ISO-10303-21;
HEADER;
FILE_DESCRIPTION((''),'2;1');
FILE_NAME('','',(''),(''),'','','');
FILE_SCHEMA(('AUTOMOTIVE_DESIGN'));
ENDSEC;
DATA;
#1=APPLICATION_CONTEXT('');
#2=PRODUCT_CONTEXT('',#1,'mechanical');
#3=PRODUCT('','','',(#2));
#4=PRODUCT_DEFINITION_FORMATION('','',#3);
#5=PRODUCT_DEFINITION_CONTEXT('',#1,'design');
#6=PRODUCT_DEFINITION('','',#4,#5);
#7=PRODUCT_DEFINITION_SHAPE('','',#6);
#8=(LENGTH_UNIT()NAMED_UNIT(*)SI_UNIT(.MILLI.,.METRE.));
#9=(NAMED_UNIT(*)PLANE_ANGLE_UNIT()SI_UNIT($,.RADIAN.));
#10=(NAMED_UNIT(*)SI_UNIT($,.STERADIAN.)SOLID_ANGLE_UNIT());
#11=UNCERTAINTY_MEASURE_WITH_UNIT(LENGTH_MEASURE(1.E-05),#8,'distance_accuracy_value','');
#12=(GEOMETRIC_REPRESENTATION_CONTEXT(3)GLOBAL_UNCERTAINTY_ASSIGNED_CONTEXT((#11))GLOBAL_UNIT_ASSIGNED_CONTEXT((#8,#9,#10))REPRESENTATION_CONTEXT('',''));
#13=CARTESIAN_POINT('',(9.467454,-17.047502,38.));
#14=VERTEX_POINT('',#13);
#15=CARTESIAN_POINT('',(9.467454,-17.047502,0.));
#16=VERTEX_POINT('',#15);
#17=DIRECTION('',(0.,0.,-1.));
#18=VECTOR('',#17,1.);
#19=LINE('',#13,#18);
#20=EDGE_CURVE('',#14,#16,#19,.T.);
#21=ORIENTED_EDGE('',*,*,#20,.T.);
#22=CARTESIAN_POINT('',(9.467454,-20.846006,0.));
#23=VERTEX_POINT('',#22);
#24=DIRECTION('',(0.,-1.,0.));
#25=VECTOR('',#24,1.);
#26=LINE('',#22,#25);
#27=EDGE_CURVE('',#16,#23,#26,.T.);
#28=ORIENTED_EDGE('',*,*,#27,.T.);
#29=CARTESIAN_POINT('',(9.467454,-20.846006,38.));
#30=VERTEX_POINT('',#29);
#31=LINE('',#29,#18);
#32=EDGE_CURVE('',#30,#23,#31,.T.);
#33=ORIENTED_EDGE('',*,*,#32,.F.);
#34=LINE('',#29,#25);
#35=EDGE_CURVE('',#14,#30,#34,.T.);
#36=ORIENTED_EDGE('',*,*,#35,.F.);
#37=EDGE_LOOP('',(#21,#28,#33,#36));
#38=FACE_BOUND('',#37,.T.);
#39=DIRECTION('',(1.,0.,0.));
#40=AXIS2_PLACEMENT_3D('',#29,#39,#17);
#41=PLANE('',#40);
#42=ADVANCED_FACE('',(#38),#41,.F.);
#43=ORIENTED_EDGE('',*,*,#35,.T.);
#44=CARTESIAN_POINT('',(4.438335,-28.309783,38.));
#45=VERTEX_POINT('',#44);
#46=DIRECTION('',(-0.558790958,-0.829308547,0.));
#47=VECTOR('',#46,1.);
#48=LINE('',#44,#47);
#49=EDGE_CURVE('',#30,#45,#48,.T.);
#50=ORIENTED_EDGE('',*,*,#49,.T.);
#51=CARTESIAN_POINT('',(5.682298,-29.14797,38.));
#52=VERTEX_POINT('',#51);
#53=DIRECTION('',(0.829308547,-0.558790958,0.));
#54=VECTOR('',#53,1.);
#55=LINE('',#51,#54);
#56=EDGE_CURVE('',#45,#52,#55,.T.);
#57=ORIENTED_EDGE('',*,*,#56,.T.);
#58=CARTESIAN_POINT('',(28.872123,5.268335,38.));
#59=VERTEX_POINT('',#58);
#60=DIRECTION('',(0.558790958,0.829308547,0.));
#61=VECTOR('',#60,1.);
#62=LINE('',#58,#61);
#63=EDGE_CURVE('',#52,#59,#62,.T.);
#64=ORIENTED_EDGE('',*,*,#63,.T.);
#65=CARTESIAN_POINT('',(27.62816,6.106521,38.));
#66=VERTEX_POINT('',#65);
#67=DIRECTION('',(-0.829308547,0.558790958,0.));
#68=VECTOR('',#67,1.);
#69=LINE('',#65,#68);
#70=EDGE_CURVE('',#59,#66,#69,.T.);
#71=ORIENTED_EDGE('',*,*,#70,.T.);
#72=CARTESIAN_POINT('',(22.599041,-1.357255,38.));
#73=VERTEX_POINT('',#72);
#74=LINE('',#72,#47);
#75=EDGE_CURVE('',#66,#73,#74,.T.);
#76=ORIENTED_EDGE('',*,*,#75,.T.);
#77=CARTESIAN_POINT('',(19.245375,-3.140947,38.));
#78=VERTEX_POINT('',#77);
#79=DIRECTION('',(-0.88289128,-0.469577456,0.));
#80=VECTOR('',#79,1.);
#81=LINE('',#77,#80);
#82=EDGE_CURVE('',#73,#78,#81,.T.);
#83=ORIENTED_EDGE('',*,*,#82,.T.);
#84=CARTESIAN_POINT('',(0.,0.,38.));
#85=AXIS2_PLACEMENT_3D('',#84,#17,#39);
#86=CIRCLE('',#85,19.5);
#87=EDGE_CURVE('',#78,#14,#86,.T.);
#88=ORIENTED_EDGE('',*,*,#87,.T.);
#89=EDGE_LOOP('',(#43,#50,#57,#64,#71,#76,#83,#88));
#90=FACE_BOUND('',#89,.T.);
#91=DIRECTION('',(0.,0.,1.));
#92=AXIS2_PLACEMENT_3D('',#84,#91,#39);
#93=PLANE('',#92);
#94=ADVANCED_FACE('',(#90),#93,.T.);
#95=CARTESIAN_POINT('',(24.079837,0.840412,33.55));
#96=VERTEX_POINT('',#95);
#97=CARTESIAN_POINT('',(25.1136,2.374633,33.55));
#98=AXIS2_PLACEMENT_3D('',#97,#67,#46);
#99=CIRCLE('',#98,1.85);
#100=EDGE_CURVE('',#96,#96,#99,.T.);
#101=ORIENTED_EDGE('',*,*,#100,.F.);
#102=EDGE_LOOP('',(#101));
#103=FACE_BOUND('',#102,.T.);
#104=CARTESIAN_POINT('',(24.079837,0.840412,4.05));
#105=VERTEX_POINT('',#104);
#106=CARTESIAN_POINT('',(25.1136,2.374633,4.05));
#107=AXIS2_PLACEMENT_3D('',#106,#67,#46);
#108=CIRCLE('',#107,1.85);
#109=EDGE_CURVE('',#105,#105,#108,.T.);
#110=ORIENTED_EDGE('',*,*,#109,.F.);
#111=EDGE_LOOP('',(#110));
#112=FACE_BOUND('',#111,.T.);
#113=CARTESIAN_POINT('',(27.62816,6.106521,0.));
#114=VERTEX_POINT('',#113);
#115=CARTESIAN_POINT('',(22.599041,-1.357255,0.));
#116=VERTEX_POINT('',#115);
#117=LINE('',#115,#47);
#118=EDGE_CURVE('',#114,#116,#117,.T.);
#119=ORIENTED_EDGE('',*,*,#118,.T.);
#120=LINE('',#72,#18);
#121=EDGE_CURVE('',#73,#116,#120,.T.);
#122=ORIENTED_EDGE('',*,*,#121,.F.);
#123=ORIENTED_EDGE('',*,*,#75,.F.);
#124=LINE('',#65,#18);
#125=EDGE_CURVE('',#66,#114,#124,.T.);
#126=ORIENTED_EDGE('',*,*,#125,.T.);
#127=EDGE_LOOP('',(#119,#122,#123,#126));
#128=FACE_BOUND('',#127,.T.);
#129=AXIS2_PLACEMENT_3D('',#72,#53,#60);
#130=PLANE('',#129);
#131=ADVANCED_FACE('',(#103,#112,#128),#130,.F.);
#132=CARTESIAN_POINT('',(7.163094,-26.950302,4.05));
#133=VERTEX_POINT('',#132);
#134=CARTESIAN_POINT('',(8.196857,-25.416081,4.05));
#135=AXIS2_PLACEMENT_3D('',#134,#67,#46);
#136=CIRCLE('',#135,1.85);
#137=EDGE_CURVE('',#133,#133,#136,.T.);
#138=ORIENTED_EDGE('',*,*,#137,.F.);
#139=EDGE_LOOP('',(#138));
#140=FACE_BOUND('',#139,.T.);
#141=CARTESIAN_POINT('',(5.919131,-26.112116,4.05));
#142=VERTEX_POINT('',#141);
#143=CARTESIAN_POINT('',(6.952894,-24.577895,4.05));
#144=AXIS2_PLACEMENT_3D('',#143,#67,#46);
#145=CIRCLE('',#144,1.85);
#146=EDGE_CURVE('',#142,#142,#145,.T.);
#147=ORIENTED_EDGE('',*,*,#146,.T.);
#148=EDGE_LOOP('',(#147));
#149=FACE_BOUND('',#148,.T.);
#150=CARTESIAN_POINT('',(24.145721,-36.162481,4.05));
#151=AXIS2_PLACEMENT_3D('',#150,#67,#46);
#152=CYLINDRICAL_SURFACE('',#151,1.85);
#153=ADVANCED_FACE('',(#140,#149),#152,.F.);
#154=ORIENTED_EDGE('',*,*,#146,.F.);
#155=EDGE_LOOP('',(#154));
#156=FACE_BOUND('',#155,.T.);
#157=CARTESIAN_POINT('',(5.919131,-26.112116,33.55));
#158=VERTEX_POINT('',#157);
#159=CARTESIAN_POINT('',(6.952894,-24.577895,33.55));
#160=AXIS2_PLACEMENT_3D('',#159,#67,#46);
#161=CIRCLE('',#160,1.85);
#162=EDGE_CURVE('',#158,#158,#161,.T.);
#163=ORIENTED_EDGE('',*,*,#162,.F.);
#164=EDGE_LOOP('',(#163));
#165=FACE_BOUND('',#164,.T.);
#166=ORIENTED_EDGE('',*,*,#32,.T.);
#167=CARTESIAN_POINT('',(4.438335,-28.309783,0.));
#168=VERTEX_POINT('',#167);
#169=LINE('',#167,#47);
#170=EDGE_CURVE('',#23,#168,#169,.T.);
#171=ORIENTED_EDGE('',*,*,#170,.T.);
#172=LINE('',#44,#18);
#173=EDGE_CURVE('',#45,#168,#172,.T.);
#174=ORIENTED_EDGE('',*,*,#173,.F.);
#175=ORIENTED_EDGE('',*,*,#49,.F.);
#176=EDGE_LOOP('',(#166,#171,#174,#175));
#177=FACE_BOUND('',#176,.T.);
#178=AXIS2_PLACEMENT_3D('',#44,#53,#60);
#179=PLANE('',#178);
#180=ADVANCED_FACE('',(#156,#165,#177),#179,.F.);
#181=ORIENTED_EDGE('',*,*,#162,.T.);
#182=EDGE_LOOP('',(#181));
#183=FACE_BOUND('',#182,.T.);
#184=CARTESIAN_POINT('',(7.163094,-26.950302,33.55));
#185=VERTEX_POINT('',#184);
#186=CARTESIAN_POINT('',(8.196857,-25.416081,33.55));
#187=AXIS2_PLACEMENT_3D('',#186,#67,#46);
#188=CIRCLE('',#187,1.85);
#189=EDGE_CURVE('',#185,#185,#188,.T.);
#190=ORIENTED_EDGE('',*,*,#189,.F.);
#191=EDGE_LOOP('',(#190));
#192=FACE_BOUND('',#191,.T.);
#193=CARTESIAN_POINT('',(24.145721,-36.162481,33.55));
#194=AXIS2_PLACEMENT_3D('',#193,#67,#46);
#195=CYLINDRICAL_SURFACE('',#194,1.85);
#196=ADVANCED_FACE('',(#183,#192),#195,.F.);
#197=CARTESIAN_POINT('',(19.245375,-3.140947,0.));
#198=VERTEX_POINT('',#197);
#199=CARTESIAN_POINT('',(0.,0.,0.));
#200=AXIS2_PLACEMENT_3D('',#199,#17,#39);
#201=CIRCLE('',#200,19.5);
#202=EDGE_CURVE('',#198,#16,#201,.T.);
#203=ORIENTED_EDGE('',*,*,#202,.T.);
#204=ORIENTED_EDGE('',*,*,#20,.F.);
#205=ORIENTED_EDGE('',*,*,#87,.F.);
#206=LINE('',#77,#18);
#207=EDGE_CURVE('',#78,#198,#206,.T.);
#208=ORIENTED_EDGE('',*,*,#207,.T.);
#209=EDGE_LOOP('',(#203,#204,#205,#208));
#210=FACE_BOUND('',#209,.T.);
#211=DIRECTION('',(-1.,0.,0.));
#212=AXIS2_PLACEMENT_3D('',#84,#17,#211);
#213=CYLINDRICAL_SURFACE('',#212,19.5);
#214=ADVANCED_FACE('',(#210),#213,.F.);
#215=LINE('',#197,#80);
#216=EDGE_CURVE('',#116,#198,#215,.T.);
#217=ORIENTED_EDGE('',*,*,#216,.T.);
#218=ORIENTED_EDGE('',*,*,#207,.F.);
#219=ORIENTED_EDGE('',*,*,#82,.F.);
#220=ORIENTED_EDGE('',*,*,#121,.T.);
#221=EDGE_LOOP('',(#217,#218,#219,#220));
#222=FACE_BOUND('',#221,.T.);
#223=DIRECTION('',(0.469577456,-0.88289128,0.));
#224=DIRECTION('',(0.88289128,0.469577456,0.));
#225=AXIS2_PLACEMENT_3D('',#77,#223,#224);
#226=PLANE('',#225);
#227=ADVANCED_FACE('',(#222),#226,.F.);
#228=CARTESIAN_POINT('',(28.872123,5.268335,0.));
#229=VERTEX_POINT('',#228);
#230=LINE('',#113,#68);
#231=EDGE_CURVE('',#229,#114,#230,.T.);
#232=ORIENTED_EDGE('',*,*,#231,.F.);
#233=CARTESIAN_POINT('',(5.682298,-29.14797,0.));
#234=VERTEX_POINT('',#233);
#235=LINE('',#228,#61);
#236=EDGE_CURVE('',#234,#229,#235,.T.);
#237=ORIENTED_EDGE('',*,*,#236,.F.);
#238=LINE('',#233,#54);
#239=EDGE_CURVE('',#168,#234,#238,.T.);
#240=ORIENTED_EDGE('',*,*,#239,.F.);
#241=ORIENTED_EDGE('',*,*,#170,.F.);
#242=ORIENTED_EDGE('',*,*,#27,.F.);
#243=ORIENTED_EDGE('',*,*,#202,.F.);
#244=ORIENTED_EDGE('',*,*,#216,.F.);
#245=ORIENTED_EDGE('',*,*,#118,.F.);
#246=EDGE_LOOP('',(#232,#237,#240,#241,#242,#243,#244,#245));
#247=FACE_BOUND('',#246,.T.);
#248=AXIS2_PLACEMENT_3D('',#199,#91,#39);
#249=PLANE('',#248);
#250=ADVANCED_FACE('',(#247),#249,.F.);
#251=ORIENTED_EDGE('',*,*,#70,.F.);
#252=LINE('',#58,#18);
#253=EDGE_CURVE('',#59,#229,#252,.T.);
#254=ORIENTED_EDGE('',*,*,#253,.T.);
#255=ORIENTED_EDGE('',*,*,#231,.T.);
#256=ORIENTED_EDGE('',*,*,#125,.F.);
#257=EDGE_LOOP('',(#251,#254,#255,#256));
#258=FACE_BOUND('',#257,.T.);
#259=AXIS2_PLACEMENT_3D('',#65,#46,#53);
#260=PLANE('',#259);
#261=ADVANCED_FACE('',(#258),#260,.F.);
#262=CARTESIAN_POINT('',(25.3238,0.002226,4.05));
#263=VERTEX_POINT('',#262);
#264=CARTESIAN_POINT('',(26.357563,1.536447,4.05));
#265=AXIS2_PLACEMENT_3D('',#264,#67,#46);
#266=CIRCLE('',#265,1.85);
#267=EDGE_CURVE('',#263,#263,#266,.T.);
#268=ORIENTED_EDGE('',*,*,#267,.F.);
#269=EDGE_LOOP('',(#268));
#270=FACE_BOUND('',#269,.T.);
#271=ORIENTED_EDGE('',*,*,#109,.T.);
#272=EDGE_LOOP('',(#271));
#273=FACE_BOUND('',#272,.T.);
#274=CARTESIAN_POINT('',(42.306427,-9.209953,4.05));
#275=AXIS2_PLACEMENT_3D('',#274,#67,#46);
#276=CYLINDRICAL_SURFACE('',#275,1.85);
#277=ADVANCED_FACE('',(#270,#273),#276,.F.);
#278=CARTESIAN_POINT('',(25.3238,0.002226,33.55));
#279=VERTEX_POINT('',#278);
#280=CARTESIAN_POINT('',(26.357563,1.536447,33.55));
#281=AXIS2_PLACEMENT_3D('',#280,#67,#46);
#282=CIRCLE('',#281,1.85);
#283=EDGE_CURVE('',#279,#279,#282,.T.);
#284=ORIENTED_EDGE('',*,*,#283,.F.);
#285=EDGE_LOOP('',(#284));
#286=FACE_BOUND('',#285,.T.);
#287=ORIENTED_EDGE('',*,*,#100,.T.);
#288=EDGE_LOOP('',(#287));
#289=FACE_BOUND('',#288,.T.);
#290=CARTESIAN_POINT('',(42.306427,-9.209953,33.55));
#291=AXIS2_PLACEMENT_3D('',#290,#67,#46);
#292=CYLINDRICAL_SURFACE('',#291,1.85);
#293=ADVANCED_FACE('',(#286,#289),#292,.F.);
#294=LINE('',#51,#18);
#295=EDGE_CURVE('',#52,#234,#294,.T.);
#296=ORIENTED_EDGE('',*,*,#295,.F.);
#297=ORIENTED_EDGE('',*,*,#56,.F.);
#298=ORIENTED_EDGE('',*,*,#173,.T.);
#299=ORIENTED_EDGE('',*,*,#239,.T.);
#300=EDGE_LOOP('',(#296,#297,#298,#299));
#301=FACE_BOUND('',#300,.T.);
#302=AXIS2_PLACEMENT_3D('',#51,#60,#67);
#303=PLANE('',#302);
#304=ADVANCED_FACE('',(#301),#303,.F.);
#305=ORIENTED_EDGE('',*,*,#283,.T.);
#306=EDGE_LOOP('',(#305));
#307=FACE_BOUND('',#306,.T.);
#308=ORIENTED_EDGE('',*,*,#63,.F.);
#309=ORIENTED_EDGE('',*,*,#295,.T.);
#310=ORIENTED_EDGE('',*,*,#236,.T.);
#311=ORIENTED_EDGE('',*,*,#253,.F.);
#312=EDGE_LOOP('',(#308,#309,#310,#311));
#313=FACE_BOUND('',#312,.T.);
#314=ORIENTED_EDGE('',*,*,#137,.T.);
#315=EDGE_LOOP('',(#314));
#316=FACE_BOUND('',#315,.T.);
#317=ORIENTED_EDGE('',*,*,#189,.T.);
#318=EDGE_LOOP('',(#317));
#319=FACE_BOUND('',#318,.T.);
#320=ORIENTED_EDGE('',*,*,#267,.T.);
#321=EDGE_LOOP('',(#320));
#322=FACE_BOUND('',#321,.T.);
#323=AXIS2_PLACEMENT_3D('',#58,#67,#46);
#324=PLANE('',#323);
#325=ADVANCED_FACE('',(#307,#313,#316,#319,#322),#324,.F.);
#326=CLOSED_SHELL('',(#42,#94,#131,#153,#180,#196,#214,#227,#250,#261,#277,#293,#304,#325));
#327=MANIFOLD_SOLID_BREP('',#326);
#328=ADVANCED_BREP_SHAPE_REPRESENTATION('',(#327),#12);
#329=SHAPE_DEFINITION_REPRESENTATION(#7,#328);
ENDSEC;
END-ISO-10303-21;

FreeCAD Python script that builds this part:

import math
import FreeCAD as App
import Part
import Sketcher
from FreeCAD import Vector

doc = App.newDocument("Part")
body = doc.addObject("PartDesign::Body", "Body")

# Sketch on XY plane
sketch1 = body.newObject("Sketcher::SketchObject", "Sketch")
sketch1.AttachmentSupport = (doc.getObject("XY_Plane"), [""])
sketch1.MapMode = "FlatFace"
sketch1.addGeometry([
    Part.LineSegment(Vector(22.599041, -1.357255, 0), Vector(19.245375, -3.140947, 0)),  # 0
    Part.ArcOfCircle(Part.Circle(Vector(0, 0, 0), Vector(0, 0, 1), 19.5), math.radians(-60.954079), math.radians(-9.269254)),  # 1
    Part.LineSegment(Vector(9.467454, -17.047502, 0), Vector(9.467454, -20.846006, 0)),  # 2
    Part.LineSegment(Vector(9.467454, -20.846006, 0), Vector(4.438335, -28.309783, 0)),  # 3
    Part.LineSegment(Vector(4.438335, -28.309783, 0), Vector(5.682298, -29.14797, 0)),  # 4
    Part.LineSegment(Vector(5.682298, -29.14797, 0), Vector(28.872123, 5.268335, 0)),  # 5
    Part.LineSegment(Vector(28.872123, 5.268335, 0), Vector(27.62816, 6.106521, 0)),  # 6
    Part.LineSegment(Vector(27.62816, 6.106521, 0), Vector(22.599041, -1.357255, 0)),  # 7
], False)
sketch1.addConstraint([
    Sketcher.Constraint("Coincident", 0, 2, 1, 2),
    Sketcher.Constraint("Coincident", 1, 1, 2, 1),
    Sketcher.Constraint("Coincident", 2, 2, 3, 1),
    Sketcher.Constraint("Coincident", 3, 2, 4, 1),
    Sketcher.Constraint("Coincident", 4, 2, 5, 1),
    Sketcher.Constraint("Coincident", 5, 2, 6, 1),
    Sketcher.Constraint("Coincident", 6, 2, 7, 1),
    Sketcher.Constraint("Coincident", 7, 2, 0, 1),
    Sketcher.Constraint("Vertical", 2),
    Sketcher.Constraint("Coincident", 1, 3, -1, 1),
    Sketcher.Constraint("Perpendicular", 3, 4),
    Sketcher.Constraint("Perpendicular", 4, 5),
    Sketcher.Constraint("Perpendicular", 5, 6),
    Sketcher.Constraint("Perpendicular", 6, 7),
    Sketcher.Constraint("Equal", 4, 6),
    Sketcher.Constraint("Equal", 3, 7),
    Sketcher.Constraint("Radius", 1, 19.5),
    Sketcher.Constraint("Distance", 3, 9.0),
    Sketcher.Constraint("Distance", 4, 1.5),
    Sketcher.Constraint("Distance", 5, 41.5),
    Sketcher.Constraint("DistanceY", 1, 1, -1, 1, 17.047502),
    Sketcher.Constraint("DistanceY", 2, 2, 2, 1, 3.798504),
    Sketcher.Constraint("DistanceY", 4, 2, -1, 1, 29.14797),
    Sketcher.Constraint("DistanceX", 1, 1, 0, 2, 9.777921),
])
pad1 = body.newObject("PartDesign::Pad", "Pad")
pad1.Profile = sketch1
pad1.Length = 38

# Sketch on an angled plane
sketch2 = body.newObject("Sketcher::SketchObject", "Sketch001")
sketch2.Placement = App.Placement(Vector(16.171517, -10.896424, 0), App.Rotation(Vector(0, 0, 1), Vector(0.558790958, 0.829308547, 0), Vector(-0.829308547, 0.558790958, 0), "ZXY"))
sketch2.addGeometry([
    Part.Circle(Vector(4.05, 16.002556, 0), Vector(0, 0, 1), 1.85),
    Part.Circle(Vector(33.55, 16.002556, 0), Vector(0, 0, 1), 1.85),
    Part.Circle(Vector(4.05, -16.497444, 0), Vector(0, 0, 1), 1.85),
    Part.Circle(Vector(33.55, -16.497444, 0), Vector(0, 0, 1), 1.85),
], False)
sketch2.addConstraint([
    Sketcher.Constraint("Equal", 0, 1),
    Sketcher.Constraint("Equal", 1, 2),
    Sketcher.Constraint("Equal", 2, 3),
    Sketcher.Constraint("Horizontal", 0, 3, 1, 3),
    Sketcher.Constraint("Horizontal", 2, 3, 3, 3),
    Sketcher.Constraint("Vertical", 0, 3, 2, 3),
    Sketcher.Constraint("Vertical", 1, 3, 3, 3),
    Sketcher.Constraint("Diameter", 0, 3.7),
    Sketcher.Constraint("DistanceX", 0, 3, 1, 3, 29.5),
    Sketcher.Constraint("DistanceY", 2, 3, 0, 3, 32.5),
    Sketcher.Constraint("DistanceX", -1, 1, 0, 3, 4.05),
    Sketcher.Constraint("DistanceY", -1, 1, 0, 3, 16.002556),
])
pocket1 = body.newObject("PartDesign::Pocket", "Pocket")
pocket1.Profile = sketch2
pocket1.Type = "ThroughAll"

doc.recompute()
